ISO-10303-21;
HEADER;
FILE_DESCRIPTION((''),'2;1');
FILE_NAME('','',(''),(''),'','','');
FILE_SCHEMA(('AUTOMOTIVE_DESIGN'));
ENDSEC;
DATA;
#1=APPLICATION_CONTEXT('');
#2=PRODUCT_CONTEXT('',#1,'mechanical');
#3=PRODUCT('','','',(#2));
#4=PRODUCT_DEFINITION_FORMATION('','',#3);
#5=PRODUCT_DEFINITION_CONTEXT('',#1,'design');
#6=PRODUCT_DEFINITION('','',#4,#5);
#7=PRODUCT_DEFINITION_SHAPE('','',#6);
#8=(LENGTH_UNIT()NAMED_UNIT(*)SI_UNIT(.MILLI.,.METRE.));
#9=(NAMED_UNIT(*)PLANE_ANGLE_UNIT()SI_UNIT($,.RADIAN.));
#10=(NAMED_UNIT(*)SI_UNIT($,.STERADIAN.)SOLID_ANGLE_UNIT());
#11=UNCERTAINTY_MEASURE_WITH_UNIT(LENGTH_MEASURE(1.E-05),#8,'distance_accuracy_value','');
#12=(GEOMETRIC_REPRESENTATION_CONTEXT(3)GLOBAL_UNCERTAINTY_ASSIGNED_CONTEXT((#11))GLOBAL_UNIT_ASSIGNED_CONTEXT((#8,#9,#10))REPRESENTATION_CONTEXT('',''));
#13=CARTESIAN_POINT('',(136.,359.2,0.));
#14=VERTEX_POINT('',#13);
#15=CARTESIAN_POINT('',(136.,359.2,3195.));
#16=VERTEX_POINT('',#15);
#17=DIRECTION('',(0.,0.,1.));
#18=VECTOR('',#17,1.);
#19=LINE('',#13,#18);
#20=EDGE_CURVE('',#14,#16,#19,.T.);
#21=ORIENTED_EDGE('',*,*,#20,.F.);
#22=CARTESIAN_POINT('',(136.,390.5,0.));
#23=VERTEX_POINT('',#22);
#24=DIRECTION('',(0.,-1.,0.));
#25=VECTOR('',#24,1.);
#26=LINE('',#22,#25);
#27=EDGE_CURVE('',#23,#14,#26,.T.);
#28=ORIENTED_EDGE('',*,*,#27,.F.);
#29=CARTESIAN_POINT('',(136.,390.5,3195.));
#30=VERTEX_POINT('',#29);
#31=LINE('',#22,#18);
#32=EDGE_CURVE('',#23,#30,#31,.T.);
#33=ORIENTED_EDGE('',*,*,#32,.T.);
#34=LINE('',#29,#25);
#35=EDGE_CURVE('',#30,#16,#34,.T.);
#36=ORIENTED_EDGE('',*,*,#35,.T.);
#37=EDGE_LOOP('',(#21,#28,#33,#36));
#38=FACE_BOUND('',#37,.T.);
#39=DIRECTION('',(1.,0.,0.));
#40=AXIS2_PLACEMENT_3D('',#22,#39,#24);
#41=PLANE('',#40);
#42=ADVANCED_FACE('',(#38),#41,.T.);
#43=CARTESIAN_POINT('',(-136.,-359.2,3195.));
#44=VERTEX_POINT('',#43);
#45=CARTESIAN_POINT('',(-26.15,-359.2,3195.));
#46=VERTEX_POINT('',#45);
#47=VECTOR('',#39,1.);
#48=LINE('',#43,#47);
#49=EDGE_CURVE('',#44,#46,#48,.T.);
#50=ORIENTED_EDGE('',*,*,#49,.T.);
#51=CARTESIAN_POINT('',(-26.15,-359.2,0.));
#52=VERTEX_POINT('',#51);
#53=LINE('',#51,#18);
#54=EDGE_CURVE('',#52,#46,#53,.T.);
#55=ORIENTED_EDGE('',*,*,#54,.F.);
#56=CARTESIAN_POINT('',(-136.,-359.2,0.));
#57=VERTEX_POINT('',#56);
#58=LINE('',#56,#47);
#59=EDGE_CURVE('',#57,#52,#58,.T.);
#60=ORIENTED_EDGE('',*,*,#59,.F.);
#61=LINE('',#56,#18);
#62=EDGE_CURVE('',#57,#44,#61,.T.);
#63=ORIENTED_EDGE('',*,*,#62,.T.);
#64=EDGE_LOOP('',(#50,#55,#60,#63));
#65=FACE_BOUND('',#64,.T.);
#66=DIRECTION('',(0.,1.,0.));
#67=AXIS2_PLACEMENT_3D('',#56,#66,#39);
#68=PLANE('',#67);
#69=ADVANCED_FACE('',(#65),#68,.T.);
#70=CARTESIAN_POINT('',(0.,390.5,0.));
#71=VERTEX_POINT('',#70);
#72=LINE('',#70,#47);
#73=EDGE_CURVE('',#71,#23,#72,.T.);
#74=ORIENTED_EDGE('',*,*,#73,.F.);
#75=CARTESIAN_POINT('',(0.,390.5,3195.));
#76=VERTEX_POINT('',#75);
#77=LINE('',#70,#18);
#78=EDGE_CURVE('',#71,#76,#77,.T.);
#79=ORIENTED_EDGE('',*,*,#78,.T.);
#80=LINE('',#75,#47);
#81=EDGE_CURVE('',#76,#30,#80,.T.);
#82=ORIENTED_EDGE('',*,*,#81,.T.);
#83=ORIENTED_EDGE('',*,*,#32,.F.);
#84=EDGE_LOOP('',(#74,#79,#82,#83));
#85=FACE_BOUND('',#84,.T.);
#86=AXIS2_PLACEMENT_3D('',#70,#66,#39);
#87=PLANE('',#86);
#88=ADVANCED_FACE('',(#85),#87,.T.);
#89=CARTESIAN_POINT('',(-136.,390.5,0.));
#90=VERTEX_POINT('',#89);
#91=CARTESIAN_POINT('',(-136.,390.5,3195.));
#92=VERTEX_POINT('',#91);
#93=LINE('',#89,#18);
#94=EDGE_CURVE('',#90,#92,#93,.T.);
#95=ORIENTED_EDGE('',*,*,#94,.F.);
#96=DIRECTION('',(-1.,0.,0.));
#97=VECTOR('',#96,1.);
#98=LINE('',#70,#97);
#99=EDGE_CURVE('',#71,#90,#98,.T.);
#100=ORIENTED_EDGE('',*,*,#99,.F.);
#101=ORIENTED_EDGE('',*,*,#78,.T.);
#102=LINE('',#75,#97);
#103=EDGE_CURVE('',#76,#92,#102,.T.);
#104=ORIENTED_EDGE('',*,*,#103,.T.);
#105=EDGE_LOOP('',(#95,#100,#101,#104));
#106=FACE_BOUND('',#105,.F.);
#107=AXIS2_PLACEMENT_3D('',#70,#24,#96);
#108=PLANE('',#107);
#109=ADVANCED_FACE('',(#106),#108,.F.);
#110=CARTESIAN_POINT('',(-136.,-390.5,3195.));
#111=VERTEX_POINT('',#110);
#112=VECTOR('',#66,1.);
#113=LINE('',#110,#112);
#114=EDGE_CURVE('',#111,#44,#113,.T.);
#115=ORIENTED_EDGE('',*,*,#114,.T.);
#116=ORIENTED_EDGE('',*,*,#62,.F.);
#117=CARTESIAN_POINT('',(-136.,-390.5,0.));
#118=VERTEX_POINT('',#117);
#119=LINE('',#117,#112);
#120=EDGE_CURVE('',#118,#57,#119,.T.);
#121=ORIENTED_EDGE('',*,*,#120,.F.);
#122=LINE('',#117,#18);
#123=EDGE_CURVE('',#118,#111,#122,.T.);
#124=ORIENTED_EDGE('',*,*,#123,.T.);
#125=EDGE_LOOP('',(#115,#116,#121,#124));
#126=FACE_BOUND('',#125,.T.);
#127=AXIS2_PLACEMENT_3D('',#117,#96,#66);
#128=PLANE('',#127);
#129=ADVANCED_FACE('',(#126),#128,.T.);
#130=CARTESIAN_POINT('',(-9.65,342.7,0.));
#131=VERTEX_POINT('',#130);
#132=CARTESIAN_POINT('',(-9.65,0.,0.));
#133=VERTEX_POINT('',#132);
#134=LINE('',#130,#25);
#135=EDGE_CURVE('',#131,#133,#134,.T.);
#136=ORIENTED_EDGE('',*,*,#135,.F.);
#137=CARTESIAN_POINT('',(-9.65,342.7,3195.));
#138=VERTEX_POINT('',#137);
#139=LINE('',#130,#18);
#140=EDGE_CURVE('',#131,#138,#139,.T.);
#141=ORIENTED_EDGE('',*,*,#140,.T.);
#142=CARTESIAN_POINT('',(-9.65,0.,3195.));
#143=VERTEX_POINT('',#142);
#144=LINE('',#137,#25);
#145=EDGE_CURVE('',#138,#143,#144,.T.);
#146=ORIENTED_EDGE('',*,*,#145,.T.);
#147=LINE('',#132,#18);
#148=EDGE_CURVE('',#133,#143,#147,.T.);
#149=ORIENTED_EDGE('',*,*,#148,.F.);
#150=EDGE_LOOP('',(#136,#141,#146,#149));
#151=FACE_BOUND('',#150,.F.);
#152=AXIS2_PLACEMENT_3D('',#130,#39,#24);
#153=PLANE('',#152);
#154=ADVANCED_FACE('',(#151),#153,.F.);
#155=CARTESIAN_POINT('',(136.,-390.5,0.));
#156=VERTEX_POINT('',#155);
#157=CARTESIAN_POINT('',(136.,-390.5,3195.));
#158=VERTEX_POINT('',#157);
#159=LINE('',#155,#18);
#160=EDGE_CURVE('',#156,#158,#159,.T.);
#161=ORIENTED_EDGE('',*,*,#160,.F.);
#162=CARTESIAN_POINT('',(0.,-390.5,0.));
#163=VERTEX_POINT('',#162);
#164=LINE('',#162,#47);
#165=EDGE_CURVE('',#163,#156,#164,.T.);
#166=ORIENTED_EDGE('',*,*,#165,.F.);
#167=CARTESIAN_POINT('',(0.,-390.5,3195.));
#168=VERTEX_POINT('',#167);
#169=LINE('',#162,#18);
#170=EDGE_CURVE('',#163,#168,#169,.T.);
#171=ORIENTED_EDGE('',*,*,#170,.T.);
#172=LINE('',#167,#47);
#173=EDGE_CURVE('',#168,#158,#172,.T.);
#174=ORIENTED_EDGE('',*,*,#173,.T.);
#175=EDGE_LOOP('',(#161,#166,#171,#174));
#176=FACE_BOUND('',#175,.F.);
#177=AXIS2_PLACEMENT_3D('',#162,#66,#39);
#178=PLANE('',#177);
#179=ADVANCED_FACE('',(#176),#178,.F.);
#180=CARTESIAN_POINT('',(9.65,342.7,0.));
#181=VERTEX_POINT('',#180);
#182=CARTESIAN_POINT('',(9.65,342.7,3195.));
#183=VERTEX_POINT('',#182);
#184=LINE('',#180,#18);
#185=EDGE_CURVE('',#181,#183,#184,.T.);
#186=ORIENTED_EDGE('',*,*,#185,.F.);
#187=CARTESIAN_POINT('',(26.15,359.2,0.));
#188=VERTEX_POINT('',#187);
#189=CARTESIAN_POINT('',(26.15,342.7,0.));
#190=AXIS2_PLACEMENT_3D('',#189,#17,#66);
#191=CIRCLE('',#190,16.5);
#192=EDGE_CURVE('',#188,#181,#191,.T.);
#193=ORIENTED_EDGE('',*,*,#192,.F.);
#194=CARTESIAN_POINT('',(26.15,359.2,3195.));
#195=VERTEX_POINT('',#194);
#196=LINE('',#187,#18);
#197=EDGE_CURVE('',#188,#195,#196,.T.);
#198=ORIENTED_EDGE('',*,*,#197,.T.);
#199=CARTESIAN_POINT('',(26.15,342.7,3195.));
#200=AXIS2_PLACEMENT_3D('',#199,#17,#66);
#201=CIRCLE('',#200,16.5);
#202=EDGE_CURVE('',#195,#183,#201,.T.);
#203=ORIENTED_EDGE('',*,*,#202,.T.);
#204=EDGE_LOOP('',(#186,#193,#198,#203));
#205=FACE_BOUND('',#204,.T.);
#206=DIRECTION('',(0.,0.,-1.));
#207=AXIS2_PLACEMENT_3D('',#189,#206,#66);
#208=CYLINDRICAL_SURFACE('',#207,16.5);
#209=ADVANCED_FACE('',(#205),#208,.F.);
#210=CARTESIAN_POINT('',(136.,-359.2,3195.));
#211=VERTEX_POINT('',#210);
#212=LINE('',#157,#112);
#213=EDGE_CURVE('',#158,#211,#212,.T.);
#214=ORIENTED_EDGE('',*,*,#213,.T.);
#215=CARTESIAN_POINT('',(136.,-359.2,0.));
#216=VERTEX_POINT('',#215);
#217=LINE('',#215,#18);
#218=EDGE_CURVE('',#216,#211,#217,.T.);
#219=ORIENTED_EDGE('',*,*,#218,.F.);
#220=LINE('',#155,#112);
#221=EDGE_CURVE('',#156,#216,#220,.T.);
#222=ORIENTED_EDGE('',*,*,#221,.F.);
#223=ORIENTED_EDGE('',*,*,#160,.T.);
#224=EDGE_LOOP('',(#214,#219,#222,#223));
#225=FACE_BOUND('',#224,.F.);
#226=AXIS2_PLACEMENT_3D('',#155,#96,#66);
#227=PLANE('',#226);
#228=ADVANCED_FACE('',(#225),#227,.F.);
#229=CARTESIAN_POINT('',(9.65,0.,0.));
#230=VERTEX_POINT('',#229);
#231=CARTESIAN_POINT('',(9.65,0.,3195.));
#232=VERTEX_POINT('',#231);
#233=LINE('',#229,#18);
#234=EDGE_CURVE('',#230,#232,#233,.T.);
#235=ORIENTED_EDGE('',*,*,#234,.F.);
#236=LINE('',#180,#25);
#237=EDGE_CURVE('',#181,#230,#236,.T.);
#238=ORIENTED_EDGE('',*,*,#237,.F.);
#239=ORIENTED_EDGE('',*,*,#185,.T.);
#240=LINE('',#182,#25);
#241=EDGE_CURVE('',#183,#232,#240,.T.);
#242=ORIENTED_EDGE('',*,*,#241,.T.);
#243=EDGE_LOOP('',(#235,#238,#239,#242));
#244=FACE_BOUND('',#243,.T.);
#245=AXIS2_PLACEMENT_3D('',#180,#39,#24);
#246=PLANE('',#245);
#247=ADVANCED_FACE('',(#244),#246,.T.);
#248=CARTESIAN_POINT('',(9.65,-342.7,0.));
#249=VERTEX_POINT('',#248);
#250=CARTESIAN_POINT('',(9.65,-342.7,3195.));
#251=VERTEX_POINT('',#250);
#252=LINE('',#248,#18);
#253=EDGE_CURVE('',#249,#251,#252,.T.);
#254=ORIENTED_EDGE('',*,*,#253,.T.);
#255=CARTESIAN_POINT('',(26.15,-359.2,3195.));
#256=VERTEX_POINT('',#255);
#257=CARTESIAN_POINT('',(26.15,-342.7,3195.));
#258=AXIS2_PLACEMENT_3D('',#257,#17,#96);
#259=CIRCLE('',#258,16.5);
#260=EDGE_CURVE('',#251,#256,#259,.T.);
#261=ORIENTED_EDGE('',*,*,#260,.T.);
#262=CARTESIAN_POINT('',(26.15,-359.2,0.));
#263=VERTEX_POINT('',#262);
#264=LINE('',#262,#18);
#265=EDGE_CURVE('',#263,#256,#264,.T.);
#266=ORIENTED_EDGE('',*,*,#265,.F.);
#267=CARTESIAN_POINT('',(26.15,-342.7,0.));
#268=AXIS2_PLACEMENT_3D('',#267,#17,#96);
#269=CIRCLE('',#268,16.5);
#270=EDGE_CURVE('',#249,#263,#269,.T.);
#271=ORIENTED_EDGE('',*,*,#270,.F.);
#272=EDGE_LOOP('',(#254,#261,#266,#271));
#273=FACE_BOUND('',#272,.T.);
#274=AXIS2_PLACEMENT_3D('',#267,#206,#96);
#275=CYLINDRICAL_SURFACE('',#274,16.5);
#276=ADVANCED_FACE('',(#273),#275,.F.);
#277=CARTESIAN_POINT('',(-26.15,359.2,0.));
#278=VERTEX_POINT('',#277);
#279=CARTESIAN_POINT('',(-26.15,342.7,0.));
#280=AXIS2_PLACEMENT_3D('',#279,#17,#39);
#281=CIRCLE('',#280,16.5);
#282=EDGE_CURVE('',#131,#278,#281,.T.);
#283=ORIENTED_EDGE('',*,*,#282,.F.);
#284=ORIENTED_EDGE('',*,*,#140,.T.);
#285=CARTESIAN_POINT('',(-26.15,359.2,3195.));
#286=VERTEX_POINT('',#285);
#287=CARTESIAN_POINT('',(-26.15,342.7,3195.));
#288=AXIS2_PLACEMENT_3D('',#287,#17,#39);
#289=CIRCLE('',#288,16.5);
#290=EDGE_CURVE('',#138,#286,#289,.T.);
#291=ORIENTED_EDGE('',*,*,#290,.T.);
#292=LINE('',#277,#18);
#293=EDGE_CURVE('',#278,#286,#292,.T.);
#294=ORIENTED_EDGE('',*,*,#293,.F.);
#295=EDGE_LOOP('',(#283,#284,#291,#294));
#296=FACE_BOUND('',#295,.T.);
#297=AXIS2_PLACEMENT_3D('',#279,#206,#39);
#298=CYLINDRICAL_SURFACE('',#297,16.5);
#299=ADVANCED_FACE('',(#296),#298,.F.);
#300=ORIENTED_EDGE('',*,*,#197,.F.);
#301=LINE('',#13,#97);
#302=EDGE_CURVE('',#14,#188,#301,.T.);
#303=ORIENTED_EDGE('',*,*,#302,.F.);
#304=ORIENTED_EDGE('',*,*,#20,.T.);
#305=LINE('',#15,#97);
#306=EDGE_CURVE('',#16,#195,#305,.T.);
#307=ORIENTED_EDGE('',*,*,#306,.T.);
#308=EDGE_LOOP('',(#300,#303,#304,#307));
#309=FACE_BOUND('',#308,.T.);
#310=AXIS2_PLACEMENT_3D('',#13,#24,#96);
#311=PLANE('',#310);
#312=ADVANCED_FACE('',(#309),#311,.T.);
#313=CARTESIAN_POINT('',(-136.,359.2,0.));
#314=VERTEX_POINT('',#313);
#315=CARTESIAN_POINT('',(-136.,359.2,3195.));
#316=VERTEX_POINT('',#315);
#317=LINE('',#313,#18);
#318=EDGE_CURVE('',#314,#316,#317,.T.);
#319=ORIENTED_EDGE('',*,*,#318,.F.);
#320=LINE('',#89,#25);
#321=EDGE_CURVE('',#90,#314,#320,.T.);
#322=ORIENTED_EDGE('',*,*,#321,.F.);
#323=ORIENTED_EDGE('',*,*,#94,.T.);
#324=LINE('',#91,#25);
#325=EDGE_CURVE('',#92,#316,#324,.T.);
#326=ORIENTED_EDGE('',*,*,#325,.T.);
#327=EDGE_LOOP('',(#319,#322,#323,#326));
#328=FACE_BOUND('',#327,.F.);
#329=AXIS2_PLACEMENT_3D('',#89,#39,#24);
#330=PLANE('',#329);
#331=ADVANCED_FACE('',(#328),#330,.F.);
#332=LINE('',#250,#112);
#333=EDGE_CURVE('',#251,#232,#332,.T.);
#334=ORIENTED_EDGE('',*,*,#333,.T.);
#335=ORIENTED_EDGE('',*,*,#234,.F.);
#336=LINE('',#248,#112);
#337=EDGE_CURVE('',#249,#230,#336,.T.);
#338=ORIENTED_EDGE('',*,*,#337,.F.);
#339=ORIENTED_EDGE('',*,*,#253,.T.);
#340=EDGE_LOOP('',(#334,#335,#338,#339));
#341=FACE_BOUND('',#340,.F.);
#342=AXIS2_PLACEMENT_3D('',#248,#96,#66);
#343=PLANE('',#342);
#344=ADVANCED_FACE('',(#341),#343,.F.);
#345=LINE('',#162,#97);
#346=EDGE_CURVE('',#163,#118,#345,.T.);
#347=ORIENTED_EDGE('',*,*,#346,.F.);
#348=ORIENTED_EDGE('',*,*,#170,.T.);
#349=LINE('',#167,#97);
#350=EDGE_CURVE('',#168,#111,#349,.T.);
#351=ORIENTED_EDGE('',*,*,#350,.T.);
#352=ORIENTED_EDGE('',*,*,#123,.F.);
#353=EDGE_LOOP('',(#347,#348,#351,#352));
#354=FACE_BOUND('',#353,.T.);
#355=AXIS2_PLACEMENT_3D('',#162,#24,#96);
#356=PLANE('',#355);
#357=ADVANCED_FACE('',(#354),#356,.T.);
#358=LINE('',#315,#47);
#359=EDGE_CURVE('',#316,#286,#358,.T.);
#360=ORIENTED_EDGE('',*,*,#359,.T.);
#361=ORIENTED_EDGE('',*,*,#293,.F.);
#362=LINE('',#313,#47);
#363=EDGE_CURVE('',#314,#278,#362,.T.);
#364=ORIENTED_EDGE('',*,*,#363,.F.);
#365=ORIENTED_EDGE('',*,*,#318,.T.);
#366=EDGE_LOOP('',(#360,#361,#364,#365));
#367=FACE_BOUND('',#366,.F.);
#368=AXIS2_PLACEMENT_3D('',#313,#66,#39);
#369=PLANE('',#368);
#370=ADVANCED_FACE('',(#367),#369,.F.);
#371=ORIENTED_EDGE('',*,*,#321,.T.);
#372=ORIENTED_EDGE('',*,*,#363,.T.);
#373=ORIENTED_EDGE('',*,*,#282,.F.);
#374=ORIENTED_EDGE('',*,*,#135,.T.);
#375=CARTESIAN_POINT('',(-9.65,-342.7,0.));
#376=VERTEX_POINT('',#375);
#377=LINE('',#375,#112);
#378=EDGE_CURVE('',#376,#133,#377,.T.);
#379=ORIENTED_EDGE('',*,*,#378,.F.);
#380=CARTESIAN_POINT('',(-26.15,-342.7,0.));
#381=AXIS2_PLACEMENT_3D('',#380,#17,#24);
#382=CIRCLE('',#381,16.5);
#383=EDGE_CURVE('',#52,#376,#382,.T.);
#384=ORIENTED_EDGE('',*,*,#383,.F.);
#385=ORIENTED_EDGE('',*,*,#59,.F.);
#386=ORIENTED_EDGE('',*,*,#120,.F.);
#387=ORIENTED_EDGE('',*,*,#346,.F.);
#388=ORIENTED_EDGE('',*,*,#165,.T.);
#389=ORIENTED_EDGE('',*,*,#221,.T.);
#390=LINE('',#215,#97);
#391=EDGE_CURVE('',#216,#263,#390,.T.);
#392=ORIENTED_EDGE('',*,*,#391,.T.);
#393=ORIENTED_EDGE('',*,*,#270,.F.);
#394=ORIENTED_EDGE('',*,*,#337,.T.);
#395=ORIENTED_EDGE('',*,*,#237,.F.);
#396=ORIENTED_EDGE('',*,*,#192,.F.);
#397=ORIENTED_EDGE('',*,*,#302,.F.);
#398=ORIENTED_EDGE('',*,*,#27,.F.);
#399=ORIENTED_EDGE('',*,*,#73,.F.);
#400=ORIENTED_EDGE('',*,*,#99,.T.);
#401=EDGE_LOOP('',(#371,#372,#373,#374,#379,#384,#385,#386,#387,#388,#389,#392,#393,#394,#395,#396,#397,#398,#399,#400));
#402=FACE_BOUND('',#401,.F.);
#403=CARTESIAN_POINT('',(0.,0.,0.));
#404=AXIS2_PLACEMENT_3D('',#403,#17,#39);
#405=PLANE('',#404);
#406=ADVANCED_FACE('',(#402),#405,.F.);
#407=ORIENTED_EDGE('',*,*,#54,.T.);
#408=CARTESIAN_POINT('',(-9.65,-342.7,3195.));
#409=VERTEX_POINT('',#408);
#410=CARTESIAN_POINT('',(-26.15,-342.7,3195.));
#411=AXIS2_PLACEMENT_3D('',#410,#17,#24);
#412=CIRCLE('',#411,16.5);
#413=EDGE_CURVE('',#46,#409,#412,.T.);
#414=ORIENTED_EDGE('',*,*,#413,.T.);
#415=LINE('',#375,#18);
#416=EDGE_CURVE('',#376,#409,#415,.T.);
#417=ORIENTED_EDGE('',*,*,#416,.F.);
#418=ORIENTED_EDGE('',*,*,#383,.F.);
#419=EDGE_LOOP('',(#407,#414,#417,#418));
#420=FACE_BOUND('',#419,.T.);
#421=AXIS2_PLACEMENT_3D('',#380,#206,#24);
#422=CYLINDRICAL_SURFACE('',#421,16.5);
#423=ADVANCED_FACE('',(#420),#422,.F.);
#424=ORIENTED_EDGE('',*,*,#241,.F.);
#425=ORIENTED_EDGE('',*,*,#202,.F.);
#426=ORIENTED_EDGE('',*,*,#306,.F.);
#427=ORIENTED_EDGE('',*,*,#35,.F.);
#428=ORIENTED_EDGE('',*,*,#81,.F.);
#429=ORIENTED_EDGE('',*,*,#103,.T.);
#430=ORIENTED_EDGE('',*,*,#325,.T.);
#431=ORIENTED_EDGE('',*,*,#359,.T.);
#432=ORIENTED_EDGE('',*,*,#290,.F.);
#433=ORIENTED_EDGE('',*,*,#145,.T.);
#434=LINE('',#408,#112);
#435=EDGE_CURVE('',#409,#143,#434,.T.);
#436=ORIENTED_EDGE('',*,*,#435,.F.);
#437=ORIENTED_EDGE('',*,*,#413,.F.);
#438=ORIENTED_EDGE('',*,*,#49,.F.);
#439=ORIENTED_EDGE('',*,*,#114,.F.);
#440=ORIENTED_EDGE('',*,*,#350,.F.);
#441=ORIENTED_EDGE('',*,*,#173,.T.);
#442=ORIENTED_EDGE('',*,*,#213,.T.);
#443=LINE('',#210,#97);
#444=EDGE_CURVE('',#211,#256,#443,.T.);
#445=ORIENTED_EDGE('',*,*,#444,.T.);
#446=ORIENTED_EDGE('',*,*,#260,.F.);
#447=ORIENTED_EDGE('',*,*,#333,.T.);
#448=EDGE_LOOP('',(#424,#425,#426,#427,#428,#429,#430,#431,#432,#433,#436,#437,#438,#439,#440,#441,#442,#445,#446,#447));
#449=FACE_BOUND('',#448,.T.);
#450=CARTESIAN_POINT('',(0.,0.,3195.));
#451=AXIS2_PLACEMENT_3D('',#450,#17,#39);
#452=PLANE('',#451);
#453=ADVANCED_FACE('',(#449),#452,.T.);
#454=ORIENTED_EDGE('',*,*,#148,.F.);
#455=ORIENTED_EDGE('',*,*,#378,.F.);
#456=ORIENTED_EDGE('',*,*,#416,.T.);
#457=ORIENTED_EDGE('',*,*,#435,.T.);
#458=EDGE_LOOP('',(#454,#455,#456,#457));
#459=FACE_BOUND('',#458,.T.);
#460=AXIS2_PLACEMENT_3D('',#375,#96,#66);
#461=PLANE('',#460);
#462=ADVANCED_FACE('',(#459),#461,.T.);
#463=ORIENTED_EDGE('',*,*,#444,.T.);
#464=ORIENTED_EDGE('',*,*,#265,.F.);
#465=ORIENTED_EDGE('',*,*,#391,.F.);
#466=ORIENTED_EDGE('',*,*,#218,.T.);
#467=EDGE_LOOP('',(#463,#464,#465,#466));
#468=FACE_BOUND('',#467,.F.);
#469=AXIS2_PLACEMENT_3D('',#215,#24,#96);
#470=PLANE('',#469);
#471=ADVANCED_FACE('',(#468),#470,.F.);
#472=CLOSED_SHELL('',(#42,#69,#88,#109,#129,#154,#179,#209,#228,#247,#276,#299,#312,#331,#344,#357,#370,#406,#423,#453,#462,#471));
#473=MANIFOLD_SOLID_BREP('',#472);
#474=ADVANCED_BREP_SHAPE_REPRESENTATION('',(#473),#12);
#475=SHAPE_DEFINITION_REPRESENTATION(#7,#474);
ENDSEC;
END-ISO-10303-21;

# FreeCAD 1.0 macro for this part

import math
import FreeCAD as App
import Part
import Sketcher

doc = App.newDocument("Part")
params = doc.addObject("Spreadsheet::Sheet", "Params")
for row, (alias, value) in enumerate([
    ("sketch1_radius", "16.5 mm"),
    ("sketch1_height", "31.3 mm"),
    ("pad1_length", "3195 mm"),
], start=1):
    params.set(f"A{row}", alias)
    params.set(f"B{row}", "=" + value)
    params.setAlias(f"B{row}", alias)

body = doc.addObject("PartDesign::Body", "Body")

sketch1 = doc.addObject("Sketcher::SketchObject", "Sketch")
body.addObject(sketch1)
sketch1.AttachmentSupport = (doc.XY_Plane, [""])
sketch1.MapMode = "FlatFace"
sketch1.addGeometry([
    Part.LineSegment(App.Vector(-136, -359, 0), App.Vector(-136, -390, 0)),
    Part.LineSegment(App.Vector(-136, -390, 0), App.Vector(136, -390, 0)),
    Part.LineSegment(App.Vector(136, -390, 0), App.Vector(136, -359, 0)),
    Part.LineSegment(App.Vector(136, -359, 0), App.Vector(26, -359, 0)),
    Part.ArcOfCircle(Part.Circle(App.Vector(26, -343, 0), App.Vector(0, 0, 1), 16), math.radians(180), math.radians(270)),
    Part.LineSegment(App.Vector(10, -343, 0), App.Vector(10, 343, 0)),
    Part.ArcOfCircle(Part.Circle(App.Vector(26, 343, 0), App.Vector(0, 0, 1), 16), math.radians(90), math.radians(180)),
    Part.LineSegment(App.Vector(26, 359, 0), App.Vector(136, 359, 0)),
    Part.LineSegment(App.Vector(136, 359, 0), App.Vector(136, 390, 0)),
    Part.LineSegment(App.Vector(136, 390, 0), App.Vector(-136, 390, 0)),
    Part.LineSegment(App.Vector(-136, 390, 0), App.Vector(-136, 359, 0)),
    Part.LineSegment(App.Vector(-136, 359, 0), App.Vector(-26, 359, 0)),
    Part.ArcOfCircle(Part.Circle(App.Vector(-26, 343, 0), App.Vector(0, 0, 1), 16), math.radians(0), math.radians(90)),
    Part.LineSegment(App.Vector(-10, 343, 0), App.Vector(-10, -343, 0)),
    Part.ArcOfCircle(Part.Circle(App.Vector(-26, -343, 0), App.Vector(0, 0, 1), 16), math.radians(-90), math.radians(0)),
    Part.LineSegment(App.Vector(-26, -359, 0), App.Vector(-136, -359, 0)),
], False)
sketch1.addConstraint([
    Sketcher.Constraint("Coincident", 0, 2, 1, 1),
    Sketcher.Constraint("Coincident", 1, 2, 2, 1),
    Sketcher.Constraint("Coincident", 2, 2, 3, 1),
    Sketcher.Constraint("Tangent", 3, 2, 4, 2),
    Sketcher.Constraint("Tangent", 4, 1, 5, 1),
    Sketcher.Constraint("Tangent", 5, 2, 6, 2),
    Sketcher.Constraint("Tangent", 6, 1, 7, 1),
    Sketcher.Constraint("Coincident", 7, 2, 8, 1),
    Sketcher.Constraint("Coincident", 8, 2, 9, 1),
    Sketcher.Constraint("Coincident", 9, 2, 10, 1),
    Sketcher.Constraint("Coincident", 10, 2, 11, 1),
    Sketcher.Constraint("Tangent", 11, 2, 12, 2),
    Sketcher.Constraint("Tangent", 12, 1, 13, 1),
    Sketcher.Constraint("Tangent", 13, 2, 14, 2),
    Sketcher.Constraint("Tangent", 14, 1, 15, 1),
    Sketcher.Constraint("Coincident", 15, 2, 0, 1),
    Sketcher.Constraint("Vertical", 0),
    Sketcher.Constraint("Horizontal", 1),
    Sketcher.Constraint("Vertical", 2),
    Sketcher.Constraint("Horizontal", 3),
    Sketcher.Constraint("Vertical", 5),
    Sketcher.Constraint("Horizontal", 7),
    Sketcher.Constraint("Vertical", 8),
    Sketcher.Constraint("Horizontal", 9),
    Sketcher.Constraint("Vertical", 10),
    Sketcher.Constraint("Horizontal", 11),
    Sketcher.Constraint("Vertical", 13),
    Sketcher.Constraint("Horizontal", 15),
    Sketcher.Constraint("Equal", 4, 6),
    Sketcher.Constraint("Equal", 6, 12),
    Sketcher.Constraint("Equal", 12, 14),
    Sketcher.Constraint("Symmetric", 4, 3, 12, 3, -1, 1),
    Sketcher.Constraint("Symmetric", 0, 2, 8, 2, -1, 1),
    Sketcher.Constraint("Symmetric", 7, 2, 10, 2, -2),
    Sketcher.Constraint("Symmetric", 2, 2, 15, 2, -2),
    Sketcher.Constraint("Radius", 4, 16.5),
    Sketcher.Constraint("DistanceY", 0, 2, 0, 1, 31.3),
    Sketcher.Constraint("DistanceX", 0, 2, -1, 1, 136.0),
    Sketcher.Constraint("DistanceY", 0, 2, -1, 1, 390.5),
    Sketcher.Constraint("DistanceX", -1, 1, 4, 1, 9.65),
])
sketch1.setExpression("Constraints[35]", "Params.sketch1_radius")
sketch1.setExpression("Constraints[36]", "Params.sketch1_height")
pad1 = doc.addObject("PartDesign::Pad", "Pad")
body.addObject(pad1)
pad1.Profile = sketch1
pad1.setExpression("Length", "Params.pad1_length")

doc.recompute()
